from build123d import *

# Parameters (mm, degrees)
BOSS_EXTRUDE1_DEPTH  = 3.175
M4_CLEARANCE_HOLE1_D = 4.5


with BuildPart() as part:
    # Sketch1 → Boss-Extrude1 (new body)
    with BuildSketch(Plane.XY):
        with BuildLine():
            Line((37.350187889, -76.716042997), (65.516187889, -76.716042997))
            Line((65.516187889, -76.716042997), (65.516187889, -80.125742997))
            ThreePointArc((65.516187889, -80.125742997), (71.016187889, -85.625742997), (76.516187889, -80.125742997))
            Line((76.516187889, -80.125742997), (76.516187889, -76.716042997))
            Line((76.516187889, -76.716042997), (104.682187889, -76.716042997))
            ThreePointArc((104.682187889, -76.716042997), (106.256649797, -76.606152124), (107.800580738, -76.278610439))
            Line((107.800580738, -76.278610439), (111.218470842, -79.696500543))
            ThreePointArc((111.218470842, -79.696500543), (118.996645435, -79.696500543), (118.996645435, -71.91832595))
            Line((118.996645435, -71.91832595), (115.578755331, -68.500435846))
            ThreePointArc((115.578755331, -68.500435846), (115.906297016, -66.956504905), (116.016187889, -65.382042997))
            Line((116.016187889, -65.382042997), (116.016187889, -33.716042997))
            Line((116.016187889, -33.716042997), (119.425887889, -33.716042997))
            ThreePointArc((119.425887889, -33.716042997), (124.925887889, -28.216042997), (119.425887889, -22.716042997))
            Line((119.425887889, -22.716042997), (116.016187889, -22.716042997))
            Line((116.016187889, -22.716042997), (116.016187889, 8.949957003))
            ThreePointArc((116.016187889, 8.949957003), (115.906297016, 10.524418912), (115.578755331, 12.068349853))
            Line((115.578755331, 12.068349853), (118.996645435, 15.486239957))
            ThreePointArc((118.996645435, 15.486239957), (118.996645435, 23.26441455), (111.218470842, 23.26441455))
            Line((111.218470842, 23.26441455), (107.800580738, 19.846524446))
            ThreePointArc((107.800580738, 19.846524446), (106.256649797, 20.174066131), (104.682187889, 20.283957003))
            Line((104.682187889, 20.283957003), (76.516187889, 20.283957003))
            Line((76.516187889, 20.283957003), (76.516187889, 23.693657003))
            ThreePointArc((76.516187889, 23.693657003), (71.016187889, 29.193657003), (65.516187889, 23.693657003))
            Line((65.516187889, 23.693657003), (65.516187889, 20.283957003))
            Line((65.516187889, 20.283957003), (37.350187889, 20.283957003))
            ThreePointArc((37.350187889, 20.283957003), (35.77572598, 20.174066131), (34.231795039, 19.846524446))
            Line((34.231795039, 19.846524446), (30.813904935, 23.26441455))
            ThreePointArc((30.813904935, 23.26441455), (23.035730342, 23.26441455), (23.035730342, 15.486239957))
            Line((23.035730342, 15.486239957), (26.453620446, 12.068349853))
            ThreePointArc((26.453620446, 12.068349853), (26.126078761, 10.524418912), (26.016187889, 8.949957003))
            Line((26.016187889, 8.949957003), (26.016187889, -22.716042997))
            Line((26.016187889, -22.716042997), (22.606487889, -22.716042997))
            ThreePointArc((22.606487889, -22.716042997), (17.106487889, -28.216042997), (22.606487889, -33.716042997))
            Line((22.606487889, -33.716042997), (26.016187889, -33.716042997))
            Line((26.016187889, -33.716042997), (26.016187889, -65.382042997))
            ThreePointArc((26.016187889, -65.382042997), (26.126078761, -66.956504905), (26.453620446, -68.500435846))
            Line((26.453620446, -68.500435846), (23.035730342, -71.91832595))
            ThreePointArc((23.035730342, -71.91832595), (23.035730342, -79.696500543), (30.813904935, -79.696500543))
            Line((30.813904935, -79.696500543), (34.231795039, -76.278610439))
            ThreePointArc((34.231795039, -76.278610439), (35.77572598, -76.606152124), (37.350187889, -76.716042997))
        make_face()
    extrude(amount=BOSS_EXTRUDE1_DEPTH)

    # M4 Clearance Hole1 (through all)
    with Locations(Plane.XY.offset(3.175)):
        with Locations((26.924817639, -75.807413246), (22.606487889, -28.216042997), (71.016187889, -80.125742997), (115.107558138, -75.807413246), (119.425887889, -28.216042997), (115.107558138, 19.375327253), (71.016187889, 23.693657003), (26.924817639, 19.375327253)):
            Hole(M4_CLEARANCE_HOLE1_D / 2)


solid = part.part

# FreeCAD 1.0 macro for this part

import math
import FreeCAD as App
import Part
import Sketcher
from FreeCAD import Vector

doc = App.newDocument("Part")
body = doc.addObject("PartDesign::Body", "Body")

# Sketch on XY plane
sketch1 = body.newObject("Sketcher::SketchObject", "Sketch")
sketch1.AttachmentSupport = (doc.getObject("XY_Plane"), [""])
sketch1.MapMode = "FlatFace"
sketch1.addGeometry(Part.LineSegment(Vector(37.350188, -76.716043, 0), Vector(65.516188, -76.716043, 0)), False)
sketch1.addGeometry(Part.LineSegment(Vector(65.516188, -76.716043, 0), Vector(65.516188, -80.125743, 0)), False)
sketch1.addGeometry(Part.ArcOfCircle(Part.Circle(Vector(71.016188, -80.125743, 0), Vector(0, 0, 1), 5.5), math.radians(180), math.radians(360)), False)
sketch1.addGeometry(Part.LineSegment(Vector(76.516188, -80.125743, 0), Vector(76.516188, -76.716043, 0)), False)
sketch1.addGeometry(Part.LineSegment(Vector(76.516188, -76.716043, 0), Vector(104.682188, -76.716043, 0)), False)
sketch1.addGeometry(Part.ArcOfCircle(Part.Circle(Vector(104.682188, -65.382043, 0), Vector(0, 0, 1), 11.334), math.radians(-90), math.radians(-74.029873)), False)
sketch1.addGeometry(Part.LineSegment(Vector(107.800581, -76.27861, 0), Vector(111.218471, -79.696501, 0)), False)
sketch1.addGeometry(Part.ArcOfCircle(Part.Circle(Vector(115.107558, -75.807413, 0), Vector(0, 0, 1), 5.5), math.radians(-135), math.radians(45)), False)
sketch1.addGeometry(Part.LineSegment(Vector(118.996645, -71.918326, 0), Vector(115.578755, -68.500436, 0)), False)
sketch1.addGeometry(Part.ArcOfCircle(Part.Circle(Vector(104.682188, -65.382043, 0), Vector(0, 0, 1), 11.334), math.radians(-15.970127), math.radians(0)), False)
sketch1.addGeometry(Part.LineSegment(Vector(116.016188, -65.382043, 0), Vector(116.016188, -33.716043, 0)), False)
sketch1.addGeometry(Part.LineSegment(Vector(116.016188, -33.716043, 0), Vector(119.425888, -33.716043, 0)), False)
sketch1.addGeometry(Part.ArcOfCircle(Part.Circle(Vector(119.425888, -28.216043, 0), Vector(0, 0, 1), 5.5), math.radians(-90), math.radians(90)), False)
sketch1.addGeometry(Part.LineSegment(Vector(119.425888, -22.716043, 0), Vector(116.016188, -22.716043, 0)), False)
sketch1.addGeometry(Part.LineSegment(Vector(116.016188, -22.716043, 0), Vector(116.016188, 8.949957, 0)), False)
sketch1.addGeometry(Part.ArcOfCircle(Part.Circle(Vector(104.682188, 8.949957, 0), Vector(0, 0, 1), 11.334), math.radians(0), math.radians(15.970127)), False)
sketch1.addGeometry(Part.LineSegment(Vector(115.578755, 12.06835, 0), Vector(118.996645, 15.48624, 0)), False)
sketch1.addGeometry(Part.ArcOfCircle(Part.Circle(Vector(115.107558, 19.375327, 0), Vector(0, 0, 1), 5.5), math.radians(-45), math.radians(135)), False)
sketch1.addGeometry(Part.LineSegment(Vector(111.218471, 23.264415, 0), Vector(107.800581, 19.846524, 0)), False)
sketch1.addGeometry(Part.ArcOfCircle(Part.Circle(Vector(104.682188, 8.949957, 0), Vector(0, 0, 1), 11.334), math.radians(74.029873), math.radians(90)), False)
sketch1.addGeometry(Part.LineSegment(Vector(104.682188, 20.283957, 0), Vector(76.516188, 20.283957, 0)), False)
sketch1.addGeometry(Part.LineSegment(Vector(76.516188, 20.283957, 0), Vector(76.516188, 23.693657, 0)), False)
sketch1.addGeometry(Part.ArcOfCircle(Part.Circle(Vector(71.016188, 23.693657, 0), Vector(0, 0, 1), 5.5), math.radians(0), math.radians(180)), False)
sketch1.addGeometry(Part.LineSegment(Vector(65.516188, 23.693657, 0), Vector(65.516188, 20.283957, 0)), False)
sketch1.addGeometry(Part.LineSegment(Vector(65.516188, 20.283957, 0), Vector(37.350188, 20.283957, 0)), False)
sketch1.addGeometry(Part.ArcOfCircle(Part.Circle(Vector(37.350188, 8.949957, 0), Vector(0, 0, 1), 11.334), math.radians(90), math.radians(105.970127)), False)
sketch1.addGeometry(Part.LineSegment(Vector(34.231795, 19.846524, 0), Vector(30.813905, 23.264415, 0)), False)
sketch1.addGeometry(Part.ArcOfCircle(Part.Circle(Vector(26.924818, 19.375327, 0), Vector(0, 0, 1), 5.5), math.radians(45), math.radians(225)), False)
sketch1.addGeometry(Part.LineSegment(Vector(23.03573, 15.48624, 0), Vector(26.45362, 12.06835, 0)), False)
sketch1.addGeometry(Part.ArcOfCircle(Part.Circle(Vector(37.350188, 8.949957, 0), Vector(0, 0, 1), 11.334), math.radians(164.029873), math.radians(180)), False)
sketch1.addGeometry(Part.LineSegment(Vector(26.016188, 8.949957, 0), Vector(26.016188, -22.716043, 0)), False)
sketch1.addGeometry(Part.LineSegment(Vector(26.016188, -22.716043, 0), Vector(22.606488, -22.716043, 0)), False)
sketch1.addGeometry(Part.ArcOfCircle(Part.Circle(Vector(22.606488, -28.216043, 0), Vector(0, 0, 1), 5.5), math.radians(90), math.radians(270)), False)
sketch1.addGeometry(Part.LineSegment(Vector(22.606488, -33.716043, 0), Vector(26.016188, -33.716043, 0)), False)
sketch1.addGeometry(Part.LineSegment(Vector(26.016188, -33.716043, 0), Vector(26.016188, -65.382043, 0)), False)
sketch1.addGeometry(Part.ArcOfCircle(Part.Circle(Vector(37.350188, -65.382043, 0), Vector(0, 0, 1), 11.334), math.radians(180), math.radians(195.970127)), False)
sketch1.addGeometry(Part.LineSegment(Vector(26.45362, -68.500436, 0), Vector(23.03573, -71.918326, 0)), False)
sketch1.addGeometry(Part.ArcOfCircle(Part.Circle(Vector(26.924818, -75.807413, 0), Vector(0, 0, 1), 5.5), math.radians(135), math.radians(315)), False)
sketch1.addGeometry(Part.LineSegment(Vector(30.813905, -79.696501, 0), Vector(34.231795, -76.27861, 0)), False)
sketch1.addGeometry(Part.ArcOfCircle(Part.Circle(Vector(37.350188, -65.382043, 0), Vector(0, 0, 1), 11.334), math.radians(-105.970127), math.radians(-90)), False)
sketch1.addConstraint(Sketcher.Constraint("Coincident", 0, 2, 1, 1))
sketch1.addConstraint(Sketcher.Constraint("Tangent", 1, 2, 2, 1))
sketch1.addConstraint(Sketcher.Constraint("Tangent", 2, 2, 3, 1))
sketch1.addConstraint(Sketcher.Constraint("Coincident", 3, 2, 4, 1))
sketch1.addConstraint(Sketcher.Constraint("Tangent", 4, 2, 5, 1))
sketch1.addConstraint(Sketcher.Constraint("Coincident", 5, 2, 6, 1))
sketch1.addConstraint(Sketcher.Constraint("Tangent", 6, 2, 7, 1))
sketch1.addConstraint(Sketcher.Constraint("Tangent", 7, 2, 8, 1))
sketch1.addConstraint(Sketcher.Constraint("Coincident", 8, 2, 9, 1))
sketch1.addConstraint(Sketcher.Constraint("Tangent", 9, 2, 10, 1))
sketch1.addConstraint(Sketcher.Constraint("Coincident", 10, 2, 11, 1))
sketch1.addConstraint(Sketcher.Constraint("Tangent", 11, 2, 12, 1))
sketch1.addConstraint(Sketcher.Constraint("Tangent", 12, 2, 13, 1))
sketch1.addConstraint(Sketcher.Constraint("Coincident", 13, 2, 14, 1))
sketch1.addConstraint(Sketcher.Constraint("Tangent", 14, 2, 15, 1))
sketch1.addConstraint(Sketcher.Constraint("Coincident", 15, 2, 16, 1))
sketch1.addConstraint(Sketcher.Constraint("Tangent", 16, 2, 17, 1))
sketch1.addConstraint(Sketcher.Constraint("Tangent", 17, 2, 18, 1))
sketch1.addConstraint(Sketcher.Constraint("Coincident", 18, 2, 19, 1))
sketch1.addConstraint(Sketcher.Constraint("Tangent", 19, 2, 20, 1))
sketch1.addConstraint(Sketcher.Constraint("Coincident", 20, 2, 21, 1))
sketch1.addConstraint(Sketcher.Constraint("Tangent", 21, 2, 22, 1))
sketch1.addConstraint(Sketcher.Constraint("Tangent", 22, 2, 23, 1))
sketch1.addConstraint(Sketcher.Constraint("Coincident", 23, 2, 24, 1))
sketch1.addConstraint(Sketcher.Constraint("Tangent", 24, 2, 25, 1))
sketch1.addConstraint(Sketcher.Constraint("Coincident", 25, 2, 26, 1))
sketch1.addConstraint(Sketcher.Constraint("Tangent", 26, 2, 27, 1))
sketch1.addConstraint(Sketcher.Constraint("Tangent", 27, 2, 28, 1))
sketch1.addConstraint(Sketcher.Constraint("Coincident", 28, 2, 29, 1))
sketch1.addConstraint(Sketcher.Constraint("Tangent", 29, 2, 30, 1))
sketch1.addConstraint(Sketcher.Constraint("Coincident", 30, 2, 31, 1))
sketch1.addConstraint(Sketcher.Constraint("Tangent", 31, 2, 32, 1))
sketch1.addConstraint(Sketcher.Constraint("Tangent", 32, 2, 33, 1))
sketch1.addConstraint(Sketcher.Constraint("Coincident", 33, 2, 34, 1))
sketch1.addConstraint(Sketcher.Constraint("Tangent", 34, 2, 35, 1))
sketch1.addConstraint(Sketcher.Constraint("Coincident", 35, 2, 36, 1))
sketch1.addConstraint(Sketcher.Constraint("Tangent", 36, 2, 37, 1))
sketch1.addConstraint(Sketcher.Constraint("Tangent", 37, 2, 38, 1))
sketch1.addConstraint(Sketcher.Constraint("Coincident", 38, 2, 39, 1))
sketch1.addConstraint(Sketcher.Constraint("Tangent", 39, 2, 0, 1))
sketch1.addConstraint(Sketcher.Constraint("Horizontal", 0))
sketch1.addConstraint(Sketcher.Constraint("Vertical", 1))
sketch1.addConstraint(Sketcher.Constraint("Vertical", 3))
sketch1.addConstraint(Sketcher.Constraint("Horizontal", 4))
sketch1.addConstraint(Sketcher.Constraint("Vertical", 10))
sketch1.addConstraint(Sketcher.Constraint("Horizontal", 11))
sketch1.addConstraint(Sketcher.Constraint("Horizontal", 13))
sketch1.addConstraint(Sketcher.Constraint("Vertical", 14))
sketch1.addConstraint(Sketcher.Constraint("Horizontal", 20))
sketch1.addConstraint(Sketcher.Constraint("Vertical", 21))
sketch1.addConstraint(Sketcher.Constraint("Vertical", 23))
sketch1.addConstraint(Sketcher.Constraint("Horizontal", 24))
sketch1.addConstraint(Sketcher.Constraint("Vertical", 30))
sketch1.addConstraint(Sketcher.Constraint("Horizontal", 31))
sketch1.addConstraint(Sketcher.Constraint("Horizontal", 33))
sketch1.addConstraint(Sketcher.Constraint("Vertical", 34))
sketch1.addConstraint(Sketcher.Constraint("Coincident", 9, 3, 5, 3))
sketch1.addConstraint(Sketcher.Constraint("Coincident", 19, 3, 15, 3))
sketch1.addConstraint(Sketcher.Constraint("Coincident", 29, 3, 25, 3))
sketch1.addConstraint(Sketcher.Constraint("Coincident", 39, 3, 35, 3))
sketch1.addConstraint(Sketcher.Constraint("Equal", 2, 7))
sketch1.addConstraint(Sketcher.Constraint("Equal", 5, 9))
sketch1.addConstraint(Sketcher.Constraint("Equal", 7, 12))
sketch1.addConstraint(Sketcher.Constraint("Equal", 9, 15))
sketch1.addConstraint(Sketcher.Constraint("Equal", 12, 17))
sketch1.addConstraint(Sketcher.Constraint("Equal", 15, 19))
sketch1.addConstraint(Sketcher.Constraint("Equal", 17, 22))
sketch1.addConstraint(Sketcher.Constraint("Equal", 19, 25))
sketch1.addConstraint(Sketcher.Constraint("Equal", 22, 27))
sketch1.addConstraint(Sketcher.Constraint("Equal", 25, 29))
sketch1.addConstraint(Sketcher.Constraint("Equal", 27, 32))
sketch1.addConstraint(Sketcher.Constraint("Equal", 29, 35))
sketch1.addConstraint(Sketcher.Constraint("Equal", 32, 37))
sketch1.addConstraint(Sketcher.Constraint("Equal", 35, 39))
sketch1.addConstraint(Sketcher.Constraint("Parallel", 6, 8))
sketch1.addConstraint(Sketcher.Constraint("Perpendicular", 8, 16))
sketch1.addConstraint(Sketcher.Constraint("Parallel", 16, 18))
sketch1.addConstraint(Sketcher.Constraint("Perpendicular", 18, 26))
sketch1.addConstraint(Sketcher.Constraint("Parallel", 26, 28))
sketch1.addConstraint(Sketcher.Constraint("Perpendicular", 28, 36))
sketch1.addConstraint(Sketcher.Constraint("Parallel", 36, 38))
sketch1.addConstraint(Sketcher.Constraint("Horizontal", 19, 3, 25, 3))
sketch1.addConstraint(Sketcher.Constraint("Horizontal", 17, 3, 27, 3))
sketch1.addConstraint(Sketcher.Constraint("Horizontal", 12, 3, 32, 3))
sketch1.addConstraint(Sketcher.Constraint("Horizontal", 9, 3, 35, 3))
sketch1.addConstraint(Sketcher.Constraint("Horizontal", 7, 3, 37, 3))
sketch1.addConstraint(Sketcher.Constraint("Horizontal", 18, 2, 25, 2))
sketch1.addConstraint(Sketcher.Constraint("Horizontal", 17, 2, 26, 2))
sketch1.addConstraint(Sketcher.Constraint("Horizontal", 8, 2, 35, 2))
sketch1.addConstraint(Sketcher.Constraint("Vertical", 9, 3, 15, 3))
sketch1.addConstraint(Sketcher.Constraint("Vertical", 7, 3, 17, 3))
sketch1.addConstraint(Sketcher.Constraint("Vertical", 2, 3, 22, 3))
sketch1.addConstraint(Sketcher.Constraint("Vertical", 29, 3, 35, 3))
sketch1.addConstraint(Sketcher.Constraint("Vertical", 8, 2, 15, 2))
sketch1.addConstraint(Sketcher.Constraint("Equal", 0, 4))
sketch1.addConstraint(Sketcher.Constraint("Equal", 13, 31))
sketch1.addConstraint(Sketcher.Constraint("Equal", 33, 1))
sketch1.addConstraint(Sketcher.Constraint("Equal", 10, 14))
sketch1.addConstraint(Sketcher.Constraint("Equal", 3, 21))
sketch1.addConstraint(Sketcher.Constraint("Equal", 6, 8))
sketch1.addConstraint(Sketcher.Constraint("Radius", 2, 5.5))
sketch1.addConstraint(Sketcher.Constraint("Radius", 5, 11.334))
sketch1.addConstraint(Sketcher.Constraint("DistanceX", 0, 1, 0, 2, 28.166))
sketch1.addConstraint(Sketcher.Constraint("DistanceY", 10, 1, 10, 2, 31.666))
sketch1.addConstraint(Sketcher.Constraint("DistanceX", 11, 1, 11, 2, 3.4097))
sketch1.addConstraint(Sketcher.Constraint("DistanceY", 6, 2, -1, 1, 79.696501))
sketch1.addConstraint(Sketcher.Constraint("DistanceX", -1, 1, 7, 3, 115.107558))
sketch1.addConstraint(Sketcher.Constraint("DistanceX", -1, 1, 5, 2, 107.800581))
pad1 = body.newObject("PartDesign::Pad", "Pad")
pad1.Profile = sketch1
pad1.Length = 3.175

# Sketch on XY plane
sketch2 = body.newObject("Sketcher::SketchObject", "Sketch001")
sketch2.AttachmentSupport = (doc.getObject("XY_Plane"), [""])
sketch2.MapMode = "FlatFace"
sketch2.AttachmentOffset = App.Placement(Vector(0, 0, 3.175), App.Rotation())
sketch2.addGeometry(Part.Circle(Vector(26.924818, -75.807413, 0), Vector(0, 0, 1), 2.25), False)
sketch2.addGeometry(Part.Circle(Vector(22.606488, -28.216043, 0), Vector(0, 0, 1), 2.25), False)
sketch2.addGeometry(Part.Circle(Vector(71.016188, -80.125743, 0), Vector(0, 0, 1), 2.25), False)
sketch2.addGeometry(Part.Circle(Vector(115.107558, -75.807413, 0), Vector(0, 0, 1), 2.25), False)
sketch2.addGeometry(Part.Circle(Vector(119.425888, -28.216043, 0), Vector(0, 0, 1), 2.25), False)
sketch2.addGeometry(Part.Circle(Vector(115.107558, 19.375327, 0), Vector(0, 0, 1), 2.25), False)
sketch2.addGeometry(Part.Circle(Vector(71.016188, 23.693657, 0), Vector(0, 0, 1), 2.25), False)
sketch2.addGeometry(Part.Circle(Vector(26.924818, 19.375327, 0), Vector(0, 0, 1), 2.25), False)
sketch2.addConstraint(Sketcher.Constraint("Equal", 0, 1))
sketch2.addConstraint(Sketcher.Constraint("Equal", 1, 2))
sketch2.addConstraint(Sketcher.Constraint("Equal", 2, 3))
sketch2.addConstraint(Sketcher.Constraint("Equal", 3, 4))
sketch2.addConstraint(Sketcher.Constraint("Equal", 4, 5))
sketch2.addConstraint(Sketcher.Constraint("Equal", 5, 6))
sketch2.addConstraint(Sketcher.Constraint("Equal", 6, 7))
sketch2.addConstraint(Sketcher.Constraint("Horizontal", 0, 3, 3, 3))
sketch2.addConstraint(Sketcher.Constraint("Horizontal", 1, 3, 4, 3))
sketch2.addConstraint(Sketcher.Constraint("Horizontal", 5, 3, 7, 3))
sketch2.addConstraint(Sketcher.Constraint("Vertical", 3, 3, 5, 3))
sketch2.addConstraint(Sketcher.Constraint("Vertical", 2, 3, 6, 3))
sketch2.addConstraint(Sketcher.Constraint("Vertical", 0, 3, 7, 3))
sketch2.addConstraint(Sketcher.Constraint("Diameter", 0, 4.5))
sketch2.addConstraint(Sketcher.Constraint("DistanceX", 1, 3, 2, 3, 48.4097))
sketch2.addConstraint(Sketcher.Constraint("DistanceY", 2, 3, 1, 3, 51.9097))
sketch2.addConstraint(Sketcher.Constraint("DistanceX", 2, 3, 4, 3, 48.4097))
sketch2.addConstraint(Sketcher.Constraint("DistanceY", 1, 3, 6, 3, 51.9097))
sketch2.addConstraint(Sketcher.Constraint("DistanceX", -1, 1, 3, 3, 115.107558))
sketch2.addConstraint(Sketcher.Constraint("DistanceX", 1, 3, 0, 3, 4.31833))
sketch2.addConstraint(Sketcher.Constraint("DistanceY", 0, 3, 1, 3, 47.59137))
sketch2.addConstraint(Sketcher.Constraint("DistanceX", 2, 3, 3, 3, 44.09137))
sketch2.addConstraint(Sketcher.Constraint("DistanceY", 4, 3, 5, 3, 47.59137))
sketch2.addConstraint(Sketcher.Constraint("DistanceY", 0, 3, -1, 1, 75.807413))
doc.recompute()
hole = body.newObject("PartDesign::Hole", "Hole")
hole.Profile = sketch2
hole.ThreadType = "None"
hole.Diameter = 4.5
hole.DepthType = "ThroughAll"

doc.recompute()
